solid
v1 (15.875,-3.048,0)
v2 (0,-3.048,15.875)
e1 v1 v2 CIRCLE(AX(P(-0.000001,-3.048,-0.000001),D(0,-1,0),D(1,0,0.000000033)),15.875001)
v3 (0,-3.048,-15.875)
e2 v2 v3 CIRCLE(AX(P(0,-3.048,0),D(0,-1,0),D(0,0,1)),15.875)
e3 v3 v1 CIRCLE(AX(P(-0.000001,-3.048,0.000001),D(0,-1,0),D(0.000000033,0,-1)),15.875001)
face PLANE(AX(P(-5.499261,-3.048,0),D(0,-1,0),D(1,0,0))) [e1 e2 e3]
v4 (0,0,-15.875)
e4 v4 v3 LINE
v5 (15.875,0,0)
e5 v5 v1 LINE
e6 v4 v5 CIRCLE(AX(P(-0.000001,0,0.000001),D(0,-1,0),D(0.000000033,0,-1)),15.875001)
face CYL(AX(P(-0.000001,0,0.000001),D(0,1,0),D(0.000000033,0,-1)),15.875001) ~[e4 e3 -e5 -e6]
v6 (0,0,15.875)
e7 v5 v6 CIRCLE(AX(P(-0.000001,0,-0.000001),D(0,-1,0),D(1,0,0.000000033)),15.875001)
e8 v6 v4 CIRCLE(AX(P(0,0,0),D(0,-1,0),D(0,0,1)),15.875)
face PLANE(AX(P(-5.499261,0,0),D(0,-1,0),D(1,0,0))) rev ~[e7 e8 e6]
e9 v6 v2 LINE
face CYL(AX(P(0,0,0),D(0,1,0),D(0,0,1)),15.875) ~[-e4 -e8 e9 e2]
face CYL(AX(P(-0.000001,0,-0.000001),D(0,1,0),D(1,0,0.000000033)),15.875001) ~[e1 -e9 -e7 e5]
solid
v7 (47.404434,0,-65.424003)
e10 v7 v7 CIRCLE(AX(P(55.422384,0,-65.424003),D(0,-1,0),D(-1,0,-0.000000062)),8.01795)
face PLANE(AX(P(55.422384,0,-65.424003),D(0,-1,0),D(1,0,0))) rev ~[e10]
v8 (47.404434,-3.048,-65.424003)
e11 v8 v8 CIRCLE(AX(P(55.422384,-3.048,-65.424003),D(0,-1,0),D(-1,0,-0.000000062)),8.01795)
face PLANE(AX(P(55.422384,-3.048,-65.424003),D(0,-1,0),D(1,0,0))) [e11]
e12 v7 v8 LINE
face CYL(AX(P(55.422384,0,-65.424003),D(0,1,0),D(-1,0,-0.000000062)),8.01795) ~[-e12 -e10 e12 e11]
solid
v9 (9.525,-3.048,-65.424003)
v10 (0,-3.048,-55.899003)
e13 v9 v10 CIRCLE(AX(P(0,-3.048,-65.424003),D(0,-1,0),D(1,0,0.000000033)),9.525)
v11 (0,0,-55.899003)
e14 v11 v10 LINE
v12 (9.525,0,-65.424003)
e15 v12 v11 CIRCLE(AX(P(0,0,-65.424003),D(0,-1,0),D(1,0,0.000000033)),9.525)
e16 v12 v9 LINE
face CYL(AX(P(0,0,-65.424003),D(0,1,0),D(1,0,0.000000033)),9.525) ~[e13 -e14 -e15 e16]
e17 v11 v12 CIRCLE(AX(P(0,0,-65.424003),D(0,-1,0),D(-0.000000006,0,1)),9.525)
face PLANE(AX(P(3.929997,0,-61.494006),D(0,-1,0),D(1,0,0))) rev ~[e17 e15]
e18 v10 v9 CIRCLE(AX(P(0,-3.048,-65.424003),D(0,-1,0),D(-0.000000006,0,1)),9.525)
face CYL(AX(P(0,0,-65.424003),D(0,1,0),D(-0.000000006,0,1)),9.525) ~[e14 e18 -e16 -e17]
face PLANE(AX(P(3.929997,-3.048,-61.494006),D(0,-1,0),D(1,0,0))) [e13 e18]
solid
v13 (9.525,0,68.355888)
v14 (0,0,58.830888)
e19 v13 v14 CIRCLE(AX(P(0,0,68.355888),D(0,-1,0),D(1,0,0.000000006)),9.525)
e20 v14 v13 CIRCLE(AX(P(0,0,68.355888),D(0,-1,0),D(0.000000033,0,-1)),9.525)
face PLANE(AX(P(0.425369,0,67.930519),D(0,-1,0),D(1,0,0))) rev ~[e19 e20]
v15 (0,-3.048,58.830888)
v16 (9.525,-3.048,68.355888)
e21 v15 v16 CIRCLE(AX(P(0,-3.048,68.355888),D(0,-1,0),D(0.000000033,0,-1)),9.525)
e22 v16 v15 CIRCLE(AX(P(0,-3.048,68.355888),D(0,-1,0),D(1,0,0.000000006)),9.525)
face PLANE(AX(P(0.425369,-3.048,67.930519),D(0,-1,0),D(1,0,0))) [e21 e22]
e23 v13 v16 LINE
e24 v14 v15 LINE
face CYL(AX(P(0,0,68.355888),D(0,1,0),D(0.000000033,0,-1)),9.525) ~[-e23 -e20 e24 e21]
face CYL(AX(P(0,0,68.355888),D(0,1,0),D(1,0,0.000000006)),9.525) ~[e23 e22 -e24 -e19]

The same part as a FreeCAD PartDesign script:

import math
import FreeCAD as App
import Part
import Sketcher

V = App.Vector
Q = App.Units.Quantity

doc = App.newDocument("Part")
body = doc.addObject("PartDesign::Body", "Body")
body.AllowCompound = True

# Sketch on XZ plane
sketch1 = body.newObject("Sketcher::SketchObject", "Sketch")
sketch1.AttachmentSupport = (doc.getObject("XZ_Plane"), [""])
sketch1.MapMode = "FlatFace"
sketch1.addGeometry(Part.ArcOfCircle(Part.Circle(V(0, -65, 0), V(0, 0, 1), 10), math.radians(0), math.radians(90)), False)
sketch1.addGeometry(Part.ArcOfCircle(Part.Circle(V(0, -65, 0), V(0, 0, 1), 10), math.radians(90), math.radians(360)), False)
sketch1.addGeometry(Part.ArcOfCircle(Part.Circle(V(0, 68, 0), V(0, 0, 1), 10), math.radians(0), math.radians(270)), False)
sketch1.addGeometry(Part.ArcOfCircle(Part.Circle(V(0, 68, 0), V(0, 0, 1), 10), math.radians(-90), math.radians(0)), False)
sketch1.addGeometry(Part.ArcOfCircle(Part.Circle(V(0, 0, 0), V(0, 0, 1), 16), math.radians(90), math.radians(270)), False)
sketch1.addGeometry(Part.ArcOfCircle(Part.Circle(V(0, 0, 0), V(0, 0, 1), 16), math.radians(-90), math.radians(0)), False)
sketch1.addGeometry(Part.ArcOfCircle(Part.Circle(V(0, 0, 0), V(0, 0, 1), 16), math.radians(0), math.radians(90)), False)
sketch1.addGeometry(Part.Circle(V(55, -65, 0), V(0, 0, 1), 8), False)
sketch1.addConstraint(Sketcher.Constraint("Tangent", 0, 1, 1, 2))
sketch1.addConstraint(Sketcher.Constraint("Coincident", 1, 1, 0, 2))
sketch1.addConstraint(Sketcher.Constraint("Tangent", 2, 1, 3, 2))
sketch1.addConstraint(Sketcher.Constraint("Coincident", 3, 1, 2, 2))
sketch1.addConstraint(Sketcher.Constraint("Tangent", 4, 2, 5, 1))
sketch1.addConstraint(Sketcher.Constraint("Tangent", 5, 2, 6, 1))
sketch1.addConstraint(Sketcher.Constraint("Tangent", 6, 2, 4, 1))
sketch1.addConstraint(Sketcher.Constraint("Coincident", 4, 3, -1, 1))
sketch1.addConstraint(Sketcher.Constraint("Equal", 1, 2))
sketch1.addConstraint(Sketcher.Constraint("PointOnObject", 0, 3, -2))
sketch1.addConstraint(Sketcher.Constraint("PointOnObject", 2, 3, -2))
sketch1.addConstraint(Sketcher.Constraint("PointOnObject", 1, 1, -2))
sketch1.addConstraint(Sketcher.Constraint("PointOnObject", 3, 1, -2))
sketch1.addConstraint(Sketcher.Constraint("PointOnObject", 4, 2, -2))
sketch1.addConstraint(Sketcher.Constraint("PointOnObject", 5, 2, -1))
sketch1.addConstraint(Sketcher.Constraint("PointOnObject", 6, 2, -2))
sketch1.addConstraint(Sketcher.Constraint("Horizontal", 1, 3, 7, 3))
sketch1.addConstraint(Sketcher.Constraint("Horizontal", 7, 3, 0, 1))
sketch1.addConstraint(Sketcher.Constraint("Horizontal", 3, 3, 2, 1))
sketch1.addConstraint(Sketcher.Constraint("Radius", 0, Q("0.375 in")))
sketch1.addConstraint(Sketcher.Constraint("Radius", 4, Q("0.625 in")))
sketch1.addConstraint(Sketcher.Constraint("Diameter", 7, Q("16.035901 mm")))
sketch1.addConstraint(Sketcher.Constraint("DistanceY", 7, 3, 6, 3, Q("65.424002 mm")))
sketch1.addConstraint(Sketcher.Constraint("DistanceY", -1, 1, 3, 3, Q("68.355888 mm")))
sketch1.addConstraint(Sketcher.Constraint("DistanceX", -1, 1, 7, 3, Q("55.422384 mm")))
pad1 = body.newObject("PartDesign::Pad", "Pad")
pad1.Profile = sketch1
pad1.Length = Q("0.12 in")

doc.recompute()
